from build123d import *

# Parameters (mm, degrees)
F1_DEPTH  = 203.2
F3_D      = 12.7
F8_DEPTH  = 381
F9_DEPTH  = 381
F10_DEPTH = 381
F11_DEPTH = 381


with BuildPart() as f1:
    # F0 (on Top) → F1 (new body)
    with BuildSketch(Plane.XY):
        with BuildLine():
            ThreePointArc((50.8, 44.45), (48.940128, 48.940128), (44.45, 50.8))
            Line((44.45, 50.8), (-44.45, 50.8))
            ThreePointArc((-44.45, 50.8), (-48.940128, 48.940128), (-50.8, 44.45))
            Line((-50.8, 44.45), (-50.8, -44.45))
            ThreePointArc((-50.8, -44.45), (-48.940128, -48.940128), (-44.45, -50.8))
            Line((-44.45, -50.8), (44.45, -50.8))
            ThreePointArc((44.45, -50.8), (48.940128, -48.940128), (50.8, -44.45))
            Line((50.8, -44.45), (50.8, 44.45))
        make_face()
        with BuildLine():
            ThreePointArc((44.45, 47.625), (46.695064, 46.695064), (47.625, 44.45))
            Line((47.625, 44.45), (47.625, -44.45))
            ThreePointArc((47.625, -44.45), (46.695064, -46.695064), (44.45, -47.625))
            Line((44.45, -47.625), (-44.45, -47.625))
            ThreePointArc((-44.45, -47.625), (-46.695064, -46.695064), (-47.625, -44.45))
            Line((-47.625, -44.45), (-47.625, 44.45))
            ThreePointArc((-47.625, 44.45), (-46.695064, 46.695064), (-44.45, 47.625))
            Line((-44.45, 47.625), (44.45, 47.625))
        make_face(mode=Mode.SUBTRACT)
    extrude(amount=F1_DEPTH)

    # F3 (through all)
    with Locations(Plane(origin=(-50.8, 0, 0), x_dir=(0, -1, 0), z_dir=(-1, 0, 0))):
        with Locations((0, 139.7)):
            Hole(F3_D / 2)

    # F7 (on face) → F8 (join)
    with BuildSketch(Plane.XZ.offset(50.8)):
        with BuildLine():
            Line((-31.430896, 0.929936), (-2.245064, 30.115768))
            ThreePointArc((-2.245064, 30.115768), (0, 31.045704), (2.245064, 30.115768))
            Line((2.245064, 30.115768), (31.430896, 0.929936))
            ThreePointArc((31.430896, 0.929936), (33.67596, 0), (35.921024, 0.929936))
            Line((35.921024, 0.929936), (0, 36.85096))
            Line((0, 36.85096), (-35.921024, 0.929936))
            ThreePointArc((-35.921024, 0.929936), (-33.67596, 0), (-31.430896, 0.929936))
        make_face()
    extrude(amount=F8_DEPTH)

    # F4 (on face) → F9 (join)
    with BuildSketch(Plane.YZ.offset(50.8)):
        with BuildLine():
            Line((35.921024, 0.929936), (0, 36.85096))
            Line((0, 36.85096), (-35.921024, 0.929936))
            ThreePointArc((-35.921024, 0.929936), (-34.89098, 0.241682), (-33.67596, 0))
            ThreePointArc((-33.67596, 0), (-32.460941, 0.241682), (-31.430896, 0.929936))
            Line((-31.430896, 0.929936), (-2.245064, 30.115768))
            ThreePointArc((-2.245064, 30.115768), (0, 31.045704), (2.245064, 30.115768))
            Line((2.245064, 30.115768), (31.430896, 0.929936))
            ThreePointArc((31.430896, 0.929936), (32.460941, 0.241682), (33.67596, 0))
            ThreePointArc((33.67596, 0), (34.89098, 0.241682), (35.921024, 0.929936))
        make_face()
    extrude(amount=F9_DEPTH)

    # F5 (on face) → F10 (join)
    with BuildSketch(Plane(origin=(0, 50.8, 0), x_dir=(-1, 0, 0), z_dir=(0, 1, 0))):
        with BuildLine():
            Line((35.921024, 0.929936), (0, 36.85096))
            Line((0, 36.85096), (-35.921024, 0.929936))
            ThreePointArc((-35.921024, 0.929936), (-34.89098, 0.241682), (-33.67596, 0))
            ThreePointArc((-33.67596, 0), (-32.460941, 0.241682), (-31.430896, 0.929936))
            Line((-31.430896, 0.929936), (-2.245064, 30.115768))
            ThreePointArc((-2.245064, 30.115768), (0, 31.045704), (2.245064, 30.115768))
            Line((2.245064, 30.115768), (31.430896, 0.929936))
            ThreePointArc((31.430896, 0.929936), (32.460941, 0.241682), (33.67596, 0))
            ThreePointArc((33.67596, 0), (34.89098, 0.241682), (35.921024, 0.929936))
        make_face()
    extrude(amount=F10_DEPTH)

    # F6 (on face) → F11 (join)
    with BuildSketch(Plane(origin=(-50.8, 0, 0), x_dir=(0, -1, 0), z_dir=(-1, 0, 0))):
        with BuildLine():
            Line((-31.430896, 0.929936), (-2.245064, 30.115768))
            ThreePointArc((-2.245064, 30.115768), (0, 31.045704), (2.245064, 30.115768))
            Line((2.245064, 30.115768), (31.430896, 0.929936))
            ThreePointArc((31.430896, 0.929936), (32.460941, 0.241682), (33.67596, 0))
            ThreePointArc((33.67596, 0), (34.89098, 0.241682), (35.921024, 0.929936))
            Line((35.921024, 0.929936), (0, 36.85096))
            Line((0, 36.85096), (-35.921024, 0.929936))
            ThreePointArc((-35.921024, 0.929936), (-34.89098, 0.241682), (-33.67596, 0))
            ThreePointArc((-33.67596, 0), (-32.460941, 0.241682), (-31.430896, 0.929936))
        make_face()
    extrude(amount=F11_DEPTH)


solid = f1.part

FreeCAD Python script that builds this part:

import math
import FreeCAD as App
import Part
import Sketcher

V = App.Vector
Q = App.Units.Quantity

doc = App.newDocument("Part")
body = doc.addObject("PartDesign::Body", "Body")

# Sketch on XY plane
sketch1 = body.newObject("Sketcher::SketchObject", "Sketch")
sketch1.AttachmentSupport = (doc.getObject("XY_Plane"), [""])
sketch1.MapMode = "FlatFace"
sketch1.addGeometry(Part.ArcOfCircle(Part.Circle(V(44.4, 44.4, 0), V(0, 0, 1), 6.4), math.radians(0), math.radians(90)), False)
sketch1.addGeometry(Part.LineSegment(V(44.5, 50.8, 0), V(-44.5, 50.8, 0)), False)
sketch1.addGeometry(Part.ArcOfCircle(Part.Circle(V(-44.4, 44.4, 0), V(0, 0, 1), 6.4), math.radians(90), math.radians(180)), False)
sketch1.addGeometry(Part.LineSegment(V(-50.8, 44.5, 0), V(-50.8, -44.5, 0)), False)
sketch1.addGeometry(Part.ArcOfCircle(Part.Circle(V(-44.4, -44.4, 0), V(0, 0, 1), 6.4), math.radians(-180), math.radians(-90)), False)
sketch1.addGeometry(Part.LineSegment(V(-44.5, -50.8, 0), V(44.5, -50.8, 0)), False)
sketch1.addGeometry(Part.ArcOfCircle(Part.Circle(V(44.4, -44.4, 0), V(0, 0, 1), 6.4), math.radians(-90), math.radians(0)), False)
sketch1.addGeometry(Part.LineSegment(V(50.8, -44.5, 0), V(50.8, 44.5, 0)), False)
sketch1.addGeometry(Part.LineSegment(V(-44.5, 47.6, 0), V(44.5, 47.6, 0)), False)
sketch1.addGeometry(Part.ArcOfCircle(Part.Circle(V(44.4, 44.4, 0), V(0, 0, 1), 3.2), math.radians(0), math.radians(90)), False)
sketch1.addGeometry(Part.LineSegment(V(47.6, 44.5, 0), V(47.6, -44.5, 0)), False)
sketch1.addGeometry(Part.ArcOfCircle(Part.Circle(V(44.4, -44.4, 0), V(0, 0, 1), 3.2), math.radians(-90), math.radians(0)), False)
sketch1.addGeometry(Part.LineSegment(V(44.5, -47.6, 0), V(-44.5, -47.6, 0)), False)
sketch1.addGeometry(Part.ArcOfCircle(Part.Circle(V(-44.4, -44.4, 0), V(0, 0, 1), 3.2), math.radians(-180), math.radians(-90)), False)
sketch1.addGeometry(Part.LineSegment(V(-47.6, -44.5, 0), V(-47.6, 44.5, 0)), False)
sketch1.addGeometry(Part.ArcOfCircle(Part.Circle(V(-44.4, 44.4, 0), V(0, 0, 1), 3.2), math.radians(90), math.radians(180)), False)
sketch1.addConstraint(Sketcher.Constraint("Tangent", 0, 2, 1, 1))
sketch1.addConstraint(Sketcher.Constraint("Tangent", 1, 2, 2, 1))
sketch1.addConstraint(Sketcher.Constraint("Tangent", 2, 2, 3, 1))
sketch1.addConstraint(Sketcher.Constraint("Tangent", 3, 2, 4, 1))
sketch1.addConstraint(Sketcher.Constraint("Tangent", 4, 2, 5, 1))
sketch1.addConstraint(Sketcher.Constraint("Tangent", 5, 2, 6, 1))
sketch1.addConstraint(Sketcher.Constraint("Tangent", 6, 2, 7, 1))
sketch1.addConstraint(Sketcher.Constraint("Tangent", 7, 2, 0, 1))
sketch1.addConstraint(Sketcher.Constraint("Tangent", 8, 2, 9, 2))
sketch1.addConstraint(Sketcher.Constraint("Tangent", 9, 1, 10, 1))
sketch1.addConstraint(Sketcher.Constraint("Tangent", 10, 2, 11, 2))
sketch1.addConstraint(Sketcher.Constraint("Tangent", 11, 1, 12, 1))
sketch1.addConstraint(Sketcher.Constraint("Tangent", 12, 2, 13, 2))
sketch1.addConstraint(Sketcher.Constraint("Tangent", 13, 1, 14, 1))
sketch1.addConstraint(Sketcher.Constraint("Tangent", 14, 2, 15, 2))
sketch1.addConstraint(Sketcher.Constraint("Tangent", 15, 1, 8, 1))
sketch1.addConstraint(Sketcher.Constraint("Horizontal", 1))
sketch1.addConstraint(Sketcher.Constraint("Vertical", 3))
sketch1.addConstraint(Sketcher.Constraint("Horizontal", 5))
sketch1.addConstraint(Sketcher.Constraint("Vertical", 7))
sketch1.addConstraint(Sketcher.Constraint("Horizontal", 8))
sketch1.addConstraint(Sketcher.Constraint("Vertical", 10))
sketch1.addConstraint(Sketcher.Constraint("Horizontal", 12))
sketch1.addConstraint(Sketcher.Constraint("Vertical", 14))
sketch1.addConstraint(Sketcher.Constraint("Coincident", 9, 3, 0, 3))
sketch1.addConstraint(Sketcher.Constraint("Coincident", 11, 3, 6, 3))
sketch1.addConstraint(Sketcher.Constraint("Coincident", 13, 3, 4, 3))
sketch1.addConstraint(Sketcher.Constraint("Equal", 0, 2))
sketch1.addConstraint(Sketcher.Constraint("Equal", 2, 4))
sketch1.addConstraint(Sketcher.Constraint("Equal", 4, 6))
sketch1.addConstraint(Sketcher.Constraint("Equal", 13, 15))
sketch1.addConstraint(Sketcher.Constraint("Symmetric", 0, 3, 4, 3, -1, 1))
sketch1.addConstraint(Sketcher.Constraint("Equal", 12, 3))
sketch1.addConstraint(Sketcher.Constraint("Radius", 0, Q("0.25 in")))
sketch1.addConstraint(Sketcher.Constraint("DistanceX", 1, 2, 1, 1, Q("3.5 in")))
sketch1.addConstraint(Sketcher.Constraint("Radius", 9, Q("0.125 in")))
pad1 = body.newObject("PartDesign::Pad", "Pad")
pad1.Profile = sketch1
pad1.Length = Q("8 in")

# Sketch on YZ plane
sketch2 = body.newObject("Sketcher::SketchObject", "Sketch001")
sketch2.AttachmentSupport = (doc.getObject("YZ_Plane"), [""])
sketch2.MapMode = "FlatFace"
sketch2.AttachmentOffset = App.Placement(V(0, 0, -2 * 25.4), App.Rotation())
sketch2.addGeometry(Part.Circle(V(0, 140, 0), V(0, 0, 1), 6), False)
sketch2.addConstraint(Sketcher.Constraint("PointOnObject", 0, 3, -2))
sketch2.addConstraint(Sketcher.Constraint("Diameter", 0, Q("0.5 in")))
sketch2.addConstraint(Sketcher.Constraint("DistanceY", -1, 1, 0, 3, Q("5.5 in")))
doc.recompute()
hole = body.newObject("PartDesign::Hole", "Hole")
hole.Profile = sketch2
hole.ThreadType = "None"
hole.Diameter = Q("0.5 in")
hole.DepthType = "ThroughAll"
hole.Reversed = True

# Sketch on XZ plane
sketch3 = body.newObject("Sketcher::SketchObject", "Sketch002")
sketch3.AttachmentSupport = (doc.getObject("XZ_Plane"), [""])
sketch3.MapMode = "FlatFace"
sketch3.AttachmentOffset = App.Placement(V(0, 0, 2 * 25.4), App.Rotation())
sketch3.addGeometry(Part.LineSegment(V(-31.4, 0.9, 0), V(-2.2, 30.1, 0)), False)
sketch3.addGeometry(Part.ArcOfCircle(Part.Circle(V(0, 27.9, 0), V(0, 0, 1), 3.2), math.radians(45), math.radians(135)), False)
sketch3.addGeometry(Part.LineSegment(V(2.2, 30.1, 0), V(31.4, 0.9, 0)), False)
sketch3.addGeometry(Part.ArcOfCircle(Part.Circle(V(33.7, 3.2, 0), V(0, 0, 1), 3.2), math.radians(-135), math.radians(-45)), False)
sketch3.addGeometry(Part.LineSegment(V(35.9, 0.9, 0), V(0, 36.9, 0)), False)
sketch3.addGeometry(Part.LineSegment(V(0, 36.9, 0), V(-35.9, 0.9, 0)), False)
sketch3.addGeometry(Part.ArcOfCircle(Part.Circle(V(-33.7, 3.2, 0), V(0, 0, 1), 3.2), math.radians(-135), math.radians(-45)), False)
sketch3.addConstraint(Sketcher.Constraint("Tangent", 0, 2, 1, 2))
sketch3.addConstraint(Sketcher.Constraint("Tangent", 1, 1, 2, 1))
sketch3.addConstraint(Sketcher.Constraint("Tangent", 2, 2, 3, 1))
sketch3.addConstraint(Sketcher.Constraint("Coincident", 3, 2, 4, 1))
sketch3.addConstraint(Sketcher.Constraint("Coincident", 4, 2, 5, 1))
sketch3.addConstraint(Sketcher.Constraint("Coincident", 5, 2, 6, 1))
sketch3.addConstraint(Sketcher.Constraint("Tangent", 6, 2, 0, 1))
sketch3.addConstraint(Sketcher.Constraint("Equal", 1, 3))
sketch3.addConstraint(Sketcher.Constraint("Equal", 3, 6))
sketch3.addConstraint(Sketcher.Constraint("Symmetric", 3, 3, 6, 3, -2))
sketch3.addConstraint(Sketcher.Constraint("PointOnObject", 1, 3, -2))
sketch3.addConstraint(Sketcher.Constraint("PointOnObject", 4, 2, -2))
sketch3.addConstraint(Sketcher.Constraint("Perpendicular", 0, 2))
sketch3.addConstraint(Sketcher.Constraint("Parallel", 2, 4))
sketch3.addConstraint(Sketcher.Constraint("Perpendicular", 4, 5))
sketch3.addConstraint(Sketcher.Constraint("Horizontal", 2, 2, 3, 2))
sketch3.addConstraint(Sketcher.Constraint("Distance", 4, Q("2 in")))
sketch3.addConstraint(Sketcher.Constraint("Radius", 1, Q("0.125 in")))
sketch3.addConstraint(Sketcher.Constraint("DistanceY", -1, 1, 3, 3, Q("0.125 in")))
pad2 = body.newObject("PartDesign::Pad", "Pad001")
pad2.Profile = sketch3
pad2.Length = Q("15 in")

# Sketch on YZ plane
sketch4 = body.newObject("Sketcher::SketchObject", "Sketch003")
sketch4.AttachmentSupport = (doc.getObject("YZ_Plane"), [""])
sketch4.MapMode = "FlatFace"
sketch4.AttachmentOffset = App.Placement(V(0, 0, 2 * 25.4), App.Rotation())
sketch4.addGeometry(Part.LineSegment(V(35.9, 0.9, 0), V(0, 36.9, 0)), False)
sketch4.addGeometry(Part.LineSegment(V(0, 36.9, 0), V(-35.9, 0.9, 0)), False)
sketch4.addGeometry(Part.ArcOfCircle(Part.Circle(V(-33.7, 3.2, 0), V(0, 0, 1), 3.2), math.radians(-135), math.radians(-90)), False)
sketch4.addGeometry(Part.ArcOfCircle(Part.Circle(V(-33.7, 3.2, 0), V(0, 0, 1), 3.2), math.radians(-90), math.radians(-45)), False)
sketch4.addGeometry(Part.LineSegment(V(-31.4, 0.9, 0), V(-2.2, 30.1, 0)), False)
sketch4.addGeometry(Part.ArcOfCircle(Part.Circle(V(0, 27.9, 0), V(0, 0, 1), 3.2), math.radians(45), math.radians(135)), False)
sketch4.addGeometry(Part.LineSegment(V(2.2, 30.1, 0), V(31.4, 0.9, 0)), False)
sketch4.addGeometry(Part.ArcOfCircle(Part.Circle(V(33.7, 3.2, 0), V(0, 0, 1), 3.2), math.radians(-135), math.radians(-90)), False)
sketch4.addGeometry(Part.ArcOfCircle(Part.Circle(V(33.7, 3.2, 0), V(0, 0, 1), 3.2), math.radians(-90), math.radians(-45)), False)
sketch4.addConstraint(Sketcher.Constraint("Coincident", 0, 2, 1, 1))
sketch4.addConstraint(Sketcher.Constraint("Coincident", 1, 2, 2, 1))
sketch4.addConstraint(Sketcher.Constraint("Tangent", 2, 2, 3, 1))
sketch4.addConstraint(Sketcher.Constraint("Tangent", 3, 2, 4, 1))
sketch4.addConstraint(Sketcher.Constraint("Tangent", 4, 2, 5, 2))
sketch4.addConstraint(Sketcher.Constraint("Tangent", 5, 1, 6, 1))
sketch4.addConstraint(Sketcher.Constraint("Tangent", 6, 2, 7, 1))
sketch4.addConstraint(Sketcher.Constraint("Tangent", 7, 2, 8, 1))
sketch4.addConstraint(Sketcher.Constraint("Coincident", 8, 2, 0, 1))
sketch4.addConstraint(Sketcher.Constraint("Equal", 3, 5))
sketch4.addConstraint(Sketcher.Constraint("Equal", 5, 7))
sketch4.addConstraint(Sketcher.Constraint("Equal", 2, 8))
sketch4.addConstraint(Sketcher.Constraint("Symmetric", 2, 2, 7, 2, -1, 1))
sketch4.addConstraint(Sketcher.Constraint("Symmetric", 2, 3, 7, 3, -2))
sketch4.addConstraint(Sketcher.Constraint("Symmetric", 4, 2, 5, 1, -2))
sketch4.addConstraint(Sketcher.Constraint("PointOnObject", 0, 2, -2))
sketch4.addConstraint(Sketcher.Constraint("Perpendicular", 0, 1))
sketch4.addConstraint(Sketcher.Constraint("Parallel", 1, 4))
sketch4.addConstraint(Sketcher.Constraint("Perpendicular", 4, 6))
sketch4.addConstraint(Sketcher.Constraint("Horizontal", 1, 2, 3, 2))
sketch4.addConstraint(Sketcher.Constraint("Vertical", 3, 3, 2, 2))
sketch4.addConstraint(Sketcher.Constraint("Distance", 0, Q("2 in")))
sketch4.addConstraint(Sketcher.Constraint("Radius", 3, Q("0.1249999 in")))
pad3 = body.newObject("PartDesign::Pad", "Pad002")
pad3.Profile = sketch4
pad3.Length = Q("15 in")

# Sketch on XZ plane
sketch5 = body.newObject("Sketcher::SketchObject", "Sketch004")
sketch5.AttachmentSupport = (doc.getObject("XZ_Plane"), [""])
sketch5.MapMode = "FlatFace"
sketch5.AttachmentOffset = App.Placement(V(0, 0, -2 * 25.4), App.Rotation())
sketch5.addGeometry(Part.LineSegment(V(-35.9, 0.9, 0), V(0, 36.9, 0)), False)
sketch5.addGeometry(Part.LineSegment(V(0, 36.9, 0), V(35.9, 0.9, 0)), False)
sketch5.addGeometry(Part.ArcOfCircle(Part.Circle(V(33.7, 3.2, 0), V(0, 0, 1), 3.2), math.radians(-90), math.radians(-45)), False)
sketch5.addGeometry(Part.ArcOfCircle(Part.Circle(V(33.7, 3.2, 0), V(0, 0, 1), 3.2), math.radians(-135), math.radians(-90)), False)
sketch5.addGeometry(Part.LineSegment(V(31.4, 0.9, 0), V(2.2, 30.1, 0)), False)
sketch5.addGeometry(Part.ArcOfCircle(Part.Circle(V(0, 27.9, 0), V(0, 0, 1), 3.2), math.radians(45), math.radians(135)), False)
sketch5.addGeometry(Part.LineSegment(V(-2.2, 30.1, 0), V(-31.4, 0.9, 0)), False)
sketch5.addGeometry(Part.ArcOfCircle(Part.Circle(V(-33.7, 3.2, 0), V(0, 0, 1), 3.2), math.radians(-90), math.radians(-45)), False)
sketch5.addGeometry(Part.ArcOfCircle(Part.Circle(V(-33.7, 3.2, 0), V(0, 0, 1), 3.2), math.radians(-135), math.radians(-90)), False)
sketch5.addConstraint(Sketcher.Constraint("Coincident", 0, 2, 1, 1))
sketch5.addConstraint(Sketcher.Constraint("Coincident", 1, 2, 2, 2))
sketch5.addConstraint(Sketcher.Constraint("Tangent", 2, 1, 3, 2))
sketch5.addConstraint(Sketcher.Constraint("Tangent", 3, 1, 4, 1))
sketch5.addConstraint(Sketcher.Constraint("Tangent", 4, 2, 5, 1))
sketch5.addConstraint(Sketcher.Constraint("Tangent", 5, 2, 6, 1))
sketch5.addConstraint(Sketcher.Constraint("Tangent", 6, 2, 7, 2))
sketch5.addConstraint(Sketcher.Constraint("Tangent", 7, 1, 8, 2))
sketch5.addConstraint(Sketcher.Constraint("Coincident", 8, 1, 0, 1))
sketch5.addConstraint(Sketcher.Constraint("Equal", 3, 5))
sketch5.addConstraint(Sketcher.Constraint("Equal", 5, 7))
sketch5.addConstraint(Sketcher.Constraint("Equal", 2, 8))
sketch5.addConstraint(Sketcher.Constraint("Symmetric", 2, 1, 7, 1, -1, 1))
sketch5.addConstraint(Sketcher.Constraint("Symmetric", 2, 3, 7, 3, -2))
sketch5.addConstraint(Sketcher.Constraint("Symmetric", 4, 2, 5, 2, -2))
sketch5.addConstraint(Sketcher.Constraint("PointOnObject", 0, 2, -2))
sketch5.addConstraint(Sketcher.Constraint("Perpendicular", 0, 1))
sketch5.addConstraint(Sketcher.Constraint("Parallel", 1, 4))
sketch5.addConstraint(Sketcher.Constraint("Perpendicular", 4, 6))
sketch5.addConstraint(Sketcher.Constraint("Horizontal", 1, 2, 3, 1))
sketch5.addConstraint(Sketcher.Constraint("Vertical", 3, 3, 2, 1))
sketch5.addConstraint(Sketcher.Constraint("Distance", 0, Q("2 in")))
sketch5.addConstraint(Sketcher.Constraint("Radius", 3, Q("0.1249999 in")))
pad4 = body.newObject("PartDesign::Pad", "Pad003")
pad4.Profile = sketch5
pad4.Length = Q("15 in")
pad4.Reversed = True

# Sketch on YZ plane
sketch6 = body.newObject("Sketcher::SketchObject", "Sketch005")
sketch6.AttachmentSupport = (doc.getObject("YZ_Plane"), [""])
sketch6.MapMode = "FlatFace"
sketch6.AttachmentOffset = App.Placement(V(0, 0, -2 * 25.4), App.Rotation())
sketch6.addGeometry(Part.LineSegment(V(31.4, 0.9, 0), V(2.2, 30.1, 0)), False)
sketch6.addGeometry(Part.ArcOfCircle(Part.Circle(V(0, 27.9, 0), V(0, 0, 1), 3.2), math.radians(45), math.radians(135)), False)
sketch6.addGeometry(Part.LineSegment(V(-2.2, 30.1, 0), V(-31.4, 0.9, 0)), False)
sketch6.addGeometry(Part.ArcOfCircle(Part.Circle(V(-33.7, 3.2, 0), V(0, 0, 1), 3.2), math.radians(-90), math.radians(-45)), False)
sketch6.addGeometry(Part.ArcOfCircle(Part.Circle(V(-33.7, 3.2, 0), V(0, 0, 1), 3.2), math.radians(-135), math.radians(-90)), False)
sketch6.addGeometry(Part.LineSegment(V(-35.9, 0.9, 0), V(0, 36.9, 0)), False)
sketch6.addGeometry(Part.LineSegment(V(0, 36.9, 0), V(35.9, 0.9, 0)), False)
sketch6.addGeometry(Part.ArcOfCircle(Part.Circle(V(33.7, 3.2, 0), V(0, 0, 1), 3.2), math.radians(-90), math.radians(-45)), False)
sketch6.addGeometry(Part.ArcOfCircle(Part.Circle(V(33.7, 3.2, 0), V(0, 0, 1), 3.2), math.radians(-135), math.radians(-90)), False)
sketch6.addConstraint(Sketcher.Constraint("Tangent", 0, 2, 1, 1))
sketch6.addConstraint(Sketcher.Constraint("Tangent", 1, 2, 2, 1))
sketch6.addConstraint(Sketcher.Constraint("Tangent", 2, 2, 3, 2))
sketch6.addConstraint(Sketcher.Constraint("Tangent", 3, 1, 4, 2))
sketch6.addConstraint(Sketcher.Constraint("Coincident", 4, 1, 5, 1))
sketch6.addConstraint(Sketcher.Constraint("Coincident", 5, 2, 6, 1))
sketch6.addConstraint(Sketcher.Constraint("Coincident", 6, 2, 7, 2))
sketch6.addConstraint(Sketcher.Constraint("Tangent", 7, 1, 8, 2))
sketch6.addConstraint(Sketcher.Constraint("Tangent", 8, 1, 0, 1))
sketch6.addConstraint(Sketcher.Constraint("Equal", 1, 3))
sketch6.addConstraint(Sketcher.Constraint("Equal", 4, 7))
sketch6.addConstraint(Sketcher.Constraint("Equal", 3, 8))
sketch6.addConstraint(Sketcher.Constraint("Symmetric", 3, 1, 7, 1, -1, 1))
sketch6.addConstraint(Sketcher.Constraint("Symmetric", 3, 3, 7, 3, -2))
sketch6.addConstraint(Sketcher.Constraint("Symmetric", 0, 2, 1, 2, -2))
sketch6.addConstraint(Sketcher.Constraint("PointOnObject", 5, 2, -2))
sketch6.addConstraint(Sketcher.Constraint("Perpendicular", 0, 2))
sketch6.addConstraint(Sketcher.Constraint("Parallel", 2, 5))
sketch6.addConstraint(Sketcher.Constraint("Perpendicular", 5, 6))
sketch6.addConstraint(Sketcher.Constraint("Horizontal", 2, 2, 4, 1))
sketch6.addConstraint(Sketcher.Constraint("Vertical", 8, 3, 7, 1))
sketch6.addConstraint(Sketcher.Constraint("Distance", 5, Q("2 in")))
sketch6.addConstraint(Sketcher.Constraint("Radius", 1, Q("0.125 in")))
pad5 = body.newObject("PartDesign::Pad", "Pad004")
pad5.Profile = sketch6
pad5.Length = Q("15 in")
pad5.Reversed = True

doc.recompute()
